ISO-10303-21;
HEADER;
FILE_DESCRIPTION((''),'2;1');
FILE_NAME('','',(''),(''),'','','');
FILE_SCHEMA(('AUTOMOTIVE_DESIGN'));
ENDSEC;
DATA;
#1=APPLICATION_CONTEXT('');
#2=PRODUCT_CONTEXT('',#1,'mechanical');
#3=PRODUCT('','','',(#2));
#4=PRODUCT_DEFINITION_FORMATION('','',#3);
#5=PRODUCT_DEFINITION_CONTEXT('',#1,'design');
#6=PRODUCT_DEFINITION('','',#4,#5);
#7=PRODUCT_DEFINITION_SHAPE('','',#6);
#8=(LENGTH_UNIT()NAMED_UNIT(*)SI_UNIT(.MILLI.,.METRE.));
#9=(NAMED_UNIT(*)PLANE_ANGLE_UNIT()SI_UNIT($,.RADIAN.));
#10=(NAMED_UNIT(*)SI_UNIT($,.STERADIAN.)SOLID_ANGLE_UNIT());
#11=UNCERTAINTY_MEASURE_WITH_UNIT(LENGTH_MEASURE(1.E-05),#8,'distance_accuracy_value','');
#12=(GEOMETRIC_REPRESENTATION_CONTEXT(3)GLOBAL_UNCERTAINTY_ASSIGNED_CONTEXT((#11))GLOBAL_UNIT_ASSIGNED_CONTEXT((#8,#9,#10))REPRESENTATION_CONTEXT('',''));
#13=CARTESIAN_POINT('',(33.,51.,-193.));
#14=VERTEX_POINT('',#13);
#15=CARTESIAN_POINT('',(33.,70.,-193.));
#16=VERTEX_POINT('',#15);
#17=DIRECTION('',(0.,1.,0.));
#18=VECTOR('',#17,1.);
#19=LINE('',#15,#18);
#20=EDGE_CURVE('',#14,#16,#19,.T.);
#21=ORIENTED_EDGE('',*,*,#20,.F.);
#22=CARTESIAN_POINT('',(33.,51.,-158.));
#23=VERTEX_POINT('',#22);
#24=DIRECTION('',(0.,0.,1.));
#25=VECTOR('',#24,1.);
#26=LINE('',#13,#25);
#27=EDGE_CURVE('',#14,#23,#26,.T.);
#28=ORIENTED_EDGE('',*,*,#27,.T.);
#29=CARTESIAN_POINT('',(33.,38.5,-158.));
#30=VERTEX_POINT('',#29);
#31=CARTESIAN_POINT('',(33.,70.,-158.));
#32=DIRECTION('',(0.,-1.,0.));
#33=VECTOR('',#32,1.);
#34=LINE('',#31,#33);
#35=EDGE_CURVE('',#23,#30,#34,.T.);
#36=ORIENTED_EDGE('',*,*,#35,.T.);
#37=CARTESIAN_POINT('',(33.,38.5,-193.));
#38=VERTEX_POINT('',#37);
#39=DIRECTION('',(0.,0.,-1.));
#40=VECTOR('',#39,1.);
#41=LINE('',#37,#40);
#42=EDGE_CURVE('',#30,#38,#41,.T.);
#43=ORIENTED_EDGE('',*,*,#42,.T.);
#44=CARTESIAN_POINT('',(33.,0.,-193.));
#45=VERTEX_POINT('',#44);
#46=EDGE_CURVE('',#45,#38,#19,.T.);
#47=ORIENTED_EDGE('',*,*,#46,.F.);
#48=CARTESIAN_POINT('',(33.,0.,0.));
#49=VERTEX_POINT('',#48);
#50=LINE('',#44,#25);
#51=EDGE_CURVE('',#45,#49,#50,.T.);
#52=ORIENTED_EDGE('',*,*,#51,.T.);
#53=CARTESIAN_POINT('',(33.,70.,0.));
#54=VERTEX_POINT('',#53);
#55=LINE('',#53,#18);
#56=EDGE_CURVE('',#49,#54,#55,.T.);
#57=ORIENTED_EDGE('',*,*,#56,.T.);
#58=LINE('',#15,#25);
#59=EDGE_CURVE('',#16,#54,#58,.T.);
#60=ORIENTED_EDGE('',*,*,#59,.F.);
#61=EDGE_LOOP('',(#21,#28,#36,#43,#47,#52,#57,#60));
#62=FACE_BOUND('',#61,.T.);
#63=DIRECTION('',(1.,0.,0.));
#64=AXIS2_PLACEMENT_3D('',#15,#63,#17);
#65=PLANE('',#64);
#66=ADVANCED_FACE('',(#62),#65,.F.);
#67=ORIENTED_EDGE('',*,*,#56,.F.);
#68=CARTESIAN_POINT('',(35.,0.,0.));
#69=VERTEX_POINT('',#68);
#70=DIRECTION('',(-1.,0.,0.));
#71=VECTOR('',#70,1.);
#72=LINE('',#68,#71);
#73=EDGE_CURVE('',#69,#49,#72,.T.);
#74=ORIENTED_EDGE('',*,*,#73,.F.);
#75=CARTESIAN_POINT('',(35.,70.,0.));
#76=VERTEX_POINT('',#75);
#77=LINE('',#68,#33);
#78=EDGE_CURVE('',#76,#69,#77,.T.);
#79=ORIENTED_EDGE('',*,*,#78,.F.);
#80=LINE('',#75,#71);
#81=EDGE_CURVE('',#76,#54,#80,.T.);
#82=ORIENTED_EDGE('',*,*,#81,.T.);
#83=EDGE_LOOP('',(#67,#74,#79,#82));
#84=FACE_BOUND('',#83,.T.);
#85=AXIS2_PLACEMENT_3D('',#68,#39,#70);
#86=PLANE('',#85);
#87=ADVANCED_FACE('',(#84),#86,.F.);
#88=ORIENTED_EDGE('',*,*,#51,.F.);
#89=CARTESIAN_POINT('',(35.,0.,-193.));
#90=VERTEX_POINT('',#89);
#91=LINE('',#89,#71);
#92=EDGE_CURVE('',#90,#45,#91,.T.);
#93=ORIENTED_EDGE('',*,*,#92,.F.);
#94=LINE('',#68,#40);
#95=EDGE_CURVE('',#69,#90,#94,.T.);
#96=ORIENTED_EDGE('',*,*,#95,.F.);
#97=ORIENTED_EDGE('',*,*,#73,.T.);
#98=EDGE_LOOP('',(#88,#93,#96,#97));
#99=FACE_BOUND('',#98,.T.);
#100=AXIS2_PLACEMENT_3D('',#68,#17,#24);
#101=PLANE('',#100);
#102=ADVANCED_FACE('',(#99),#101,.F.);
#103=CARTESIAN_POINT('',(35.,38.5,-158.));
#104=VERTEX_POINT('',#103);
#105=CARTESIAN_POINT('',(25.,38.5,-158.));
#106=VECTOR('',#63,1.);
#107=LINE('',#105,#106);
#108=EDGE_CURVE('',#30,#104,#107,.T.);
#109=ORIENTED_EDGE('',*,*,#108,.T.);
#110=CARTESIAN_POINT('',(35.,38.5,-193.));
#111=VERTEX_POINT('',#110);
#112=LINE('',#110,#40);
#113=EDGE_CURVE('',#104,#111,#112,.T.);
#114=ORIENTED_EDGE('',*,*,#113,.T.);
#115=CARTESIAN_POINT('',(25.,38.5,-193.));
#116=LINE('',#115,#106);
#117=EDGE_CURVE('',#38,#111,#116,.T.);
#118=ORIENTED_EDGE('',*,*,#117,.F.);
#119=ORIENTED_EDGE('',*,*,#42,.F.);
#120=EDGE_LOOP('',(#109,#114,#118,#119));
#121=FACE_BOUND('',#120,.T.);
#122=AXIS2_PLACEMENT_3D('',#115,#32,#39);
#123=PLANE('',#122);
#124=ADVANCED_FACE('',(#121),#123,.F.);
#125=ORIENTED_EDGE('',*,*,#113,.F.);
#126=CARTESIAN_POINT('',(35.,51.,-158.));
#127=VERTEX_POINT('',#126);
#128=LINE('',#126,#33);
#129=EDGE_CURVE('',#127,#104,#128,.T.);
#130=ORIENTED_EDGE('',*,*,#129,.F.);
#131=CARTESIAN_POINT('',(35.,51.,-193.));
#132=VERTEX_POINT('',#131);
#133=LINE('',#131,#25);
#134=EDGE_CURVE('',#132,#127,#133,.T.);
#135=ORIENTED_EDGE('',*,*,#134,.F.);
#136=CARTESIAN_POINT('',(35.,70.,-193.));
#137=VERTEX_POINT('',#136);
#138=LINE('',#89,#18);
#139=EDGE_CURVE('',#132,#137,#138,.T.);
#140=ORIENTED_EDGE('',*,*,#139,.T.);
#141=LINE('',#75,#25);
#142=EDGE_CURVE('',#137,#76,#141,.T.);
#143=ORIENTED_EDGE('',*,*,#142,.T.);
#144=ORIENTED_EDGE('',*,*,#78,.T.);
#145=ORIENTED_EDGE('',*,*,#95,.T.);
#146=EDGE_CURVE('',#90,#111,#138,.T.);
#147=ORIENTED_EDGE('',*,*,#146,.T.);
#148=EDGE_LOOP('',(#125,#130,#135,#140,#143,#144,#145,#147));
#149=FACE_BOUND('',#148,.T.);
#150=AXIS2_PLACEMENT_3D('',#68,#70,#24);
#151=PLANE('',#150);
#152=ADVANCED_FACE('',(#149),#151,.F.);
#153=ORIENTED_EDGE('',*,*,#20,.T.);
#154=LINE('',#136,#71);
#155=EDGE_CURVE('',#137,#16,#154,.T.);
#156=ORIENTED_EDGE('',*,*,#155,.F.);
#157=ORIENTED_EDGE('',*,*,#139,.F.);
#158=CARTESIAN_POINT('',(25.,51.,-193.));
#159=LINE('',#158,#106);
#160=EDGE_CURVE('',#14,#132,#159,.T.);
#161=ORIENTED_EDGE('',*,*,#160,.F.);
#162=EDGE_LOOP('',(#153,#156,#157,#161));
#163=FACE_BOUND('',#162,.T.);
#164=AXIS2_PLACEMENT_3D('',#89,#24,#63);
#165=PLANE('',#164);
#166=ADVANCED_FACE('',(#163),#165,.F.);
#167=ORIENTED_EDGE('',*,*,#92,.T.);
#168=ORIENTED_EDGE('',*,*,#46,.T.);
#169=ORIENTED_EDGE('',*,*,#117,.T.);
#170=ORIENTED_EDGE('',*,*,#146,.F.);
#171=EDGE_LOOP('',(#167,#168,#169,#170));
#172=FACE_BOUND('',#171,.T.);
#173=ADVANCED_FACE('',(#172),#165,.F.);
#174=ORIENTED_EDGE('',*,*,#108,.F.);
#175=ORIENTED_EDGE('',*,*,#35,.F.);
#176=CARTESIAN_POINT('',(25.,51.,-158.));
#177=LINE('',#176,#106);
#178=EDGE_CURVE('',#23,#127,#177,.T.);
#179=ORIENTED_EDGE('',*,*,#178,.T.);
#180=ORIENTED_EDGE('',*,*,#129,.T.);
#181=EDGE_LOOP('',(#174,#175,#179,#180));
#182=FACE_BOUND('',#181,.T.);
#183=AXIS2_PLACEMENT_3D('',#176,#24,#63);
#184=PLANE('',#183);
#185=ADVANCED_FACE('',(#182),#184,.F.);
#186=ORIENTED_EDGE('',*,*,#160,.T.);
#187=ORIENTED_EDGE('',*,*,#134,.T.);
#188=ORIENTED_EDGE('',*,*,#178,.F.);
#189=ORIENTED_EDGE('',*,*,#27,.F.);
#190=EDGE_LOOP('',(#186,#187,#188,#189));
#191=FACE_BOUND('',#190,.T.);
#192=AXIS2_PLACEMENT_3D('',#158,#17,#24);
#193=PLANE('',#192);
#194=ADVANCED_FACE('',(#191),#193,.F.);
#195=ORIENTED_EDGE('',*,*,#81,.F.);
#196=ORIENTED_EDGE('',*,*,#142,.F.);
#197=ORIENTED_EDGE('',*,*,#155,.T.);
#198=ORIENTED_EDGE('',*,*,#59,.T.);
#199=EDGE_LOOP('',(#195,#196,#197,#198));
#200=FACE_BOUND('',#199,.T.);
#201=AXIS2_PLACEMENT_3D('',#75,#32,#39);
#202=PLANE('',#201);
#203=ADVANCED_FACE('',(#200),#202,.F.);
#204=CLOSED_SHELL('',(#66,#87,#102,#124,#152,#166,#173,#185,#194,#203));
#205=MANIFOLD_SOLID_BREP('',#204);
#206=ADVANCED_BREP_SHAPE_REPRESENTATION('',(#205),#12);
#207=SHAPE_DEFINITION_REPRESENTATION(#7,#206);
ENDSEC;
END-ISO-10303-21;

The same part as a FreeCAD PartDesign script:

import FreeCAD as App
import Part
import Sketcher
Q = App.Units.Quantity

doc = App.newDocument("Part")
body = doc.addObject("PartDesign::Body", "Body")

sketch1 = body.newObject("Sketcher::SketchObject", "Sketch")
sketch1.AttachmentSupport = (doc.getObject("YZ_Plane"), [""])
sketch1.MapMode = "FlatFace"
sketch1.addGeometry([
    Part.LineSegment(App.Vector(70, 0, 0), App.Vector(0, 0, 0)),
    Part.LineSegment(App.Vector(0, 0, 0), App.Vector(0, -193, 0)),
    Part.LineSegment(App.Vector(0, -193, 0), App.Vector(70, -193, 0)),
    Part.LineSegment(App.Vector(70, -193, 0), App.Vector(70, 0, 0)),
], False)
sketch1.addConstraint([
    Sketcher.Constraint("Coincident", 0, 2, 1, 1),
    Sketcher.Constraint("Coincident", 1, 2, 2, 1),
    Sketcher.Constraint("Coincident", 2, 2, 3, 1),
    Sketcher.Constraint("Coincident", 3, 2, 0, 1),
    Sketcher.Constraint("Horizontal", 0),
    Sketcher.Constraint("Vertical", 1),
    Sketcher.Constraint("Horizontal", 2),
    Sketcher.Constraint("Vertical", 3),
    Sketcher.Constraint("Coincident", 0, 2, -1, 1),
    Sketcher.Constraint("DistanceX", 0, 2, 0, 1, Q("70 mm")),
    Sketcher.Constraint("DistanceY", 1, 2, 1, 1, Q("193 mm")),
])
pad1 = body.newObject("PartDesign::Pad", "Pad")
pad1.Profile = sketch1
pad1.Length = 35

sketch2 = body.newObject("Sketcher::SketchObject", "Sketch001")
sketch2.AttachmentSupport = (doc.getObject("XY_Plane"), [""])
sketch2.MapMode = "FlatFace"
sketch2.addGeometry([
    Part.LineSegment(App.Vector(0, 70, 0), App.Vector(0, 0, 0)),
    Part.LineSegment(App.Vector(0, 0, 0), App.Vector(33, 0, 0)),
    Part.LineSegment(App.Vector(33, 0, 0), App.Vector(33, 70, 0)),
    Part.LineSegment(App.Vector(33, 70, 0), App.Vector(0, 70, 0)),
], False)
sketch2.addConstraint([
    Sketcher.Constraint("Coincident", 0, 2, 1, 1),
    Sketcher.Constraint("Coincident", 1, 2, 2, 1),
    Sketcher.Constraint("Coincident", 2, 2, 3, 1),
    Sketcher.Constraint("Coincident", 3, 2, 0, 1),
    Sketcher.Constraint("Vertical", 0),
    Sketcher.Constraint("Horizontal", 1),
    Sketcher.Constraint("Vertical", 2),
    Sketcher.Constraint("Horizontal", 3),
    Sketcher.Constraint("Coincident", 0, 2, -1, 1),
    Sketcher.Constraint("DistanceX", 1, 1, 1, 2, Q("33 mm")),
    Sketcher.Constraint("DistanceY", 0, 2, 0, 1, Q("70 mm")),
])
pocket1 = body.newObject("PartDesign::Pocket", "Pocket")
pocket1.Profile = sketch2
pocket1.Type = "ThroughAll"

sketch3 = body.newObject("Sketcher::SketchObject", "Sketch002")
sketch3.AttachmentSupport = (doc.getObject("YZ_Plane"), [""])
sketch3.MapMode = "FlatFace"
sketch3.AttachmentOffset = App.Placement(App.Vector(0, 0, 35), App.Rotation())
sketch3.addGeometry([
    Part.LineSegment(App.Vector(51, -158, 0), App.Vector(38.5, -158, 0)),
    Part.LineSegment(App.Vector(38.5, -158, 0), App.Vector(38.5, -193, 0)),
    Part.LineSegment(App.Vector(38.5, -193, 0), App.Vector(51, -193, 0)),
    Part.LineSegment(App.Vector(51, -193, 0), App.Vector(51, -158, 0)),
], False)
sketch3.addConstraint([
    Sketcher.Constraint("Coincident", 0, 2, 1, 1),
    Sketcher.Constraint("Coincident", 1, 2, 2, 1),
    Sketcher.Constraint("Coincident", 2, 2, 3, 1),
    Sketcher.Constraint("Coincident", 3, 2, 0, 1),
    Sketcher.Constraint("Horizontal", 0),
    Sketcher.Constraint("Vertical", 1),
    Sketcher.Constraint("Horizontal", 2),
    Sketcher.Constraint("Vertical", 3),
    Sketcher.Constraint("DistanceY", 1, 2, 1, 1, Q("35 mm")),
    Sketcher.Constraint("DistanceX", 0, 2, 0, 1, Q("12.5 mm")),
    Sketcher.Constraint("DistanceY", 0, 2, -1, 1, Q("158 mm")),
    Sketcher.Constraint("DistanceX", -1, 1, 2, 2, Q("51 mm")),
])
pocket2 = body.newObject("PartDesign::Pocket", "Pocket001")
pocket2.Profile = sketch3
pocket2.Length = 10

doc.recompute()
